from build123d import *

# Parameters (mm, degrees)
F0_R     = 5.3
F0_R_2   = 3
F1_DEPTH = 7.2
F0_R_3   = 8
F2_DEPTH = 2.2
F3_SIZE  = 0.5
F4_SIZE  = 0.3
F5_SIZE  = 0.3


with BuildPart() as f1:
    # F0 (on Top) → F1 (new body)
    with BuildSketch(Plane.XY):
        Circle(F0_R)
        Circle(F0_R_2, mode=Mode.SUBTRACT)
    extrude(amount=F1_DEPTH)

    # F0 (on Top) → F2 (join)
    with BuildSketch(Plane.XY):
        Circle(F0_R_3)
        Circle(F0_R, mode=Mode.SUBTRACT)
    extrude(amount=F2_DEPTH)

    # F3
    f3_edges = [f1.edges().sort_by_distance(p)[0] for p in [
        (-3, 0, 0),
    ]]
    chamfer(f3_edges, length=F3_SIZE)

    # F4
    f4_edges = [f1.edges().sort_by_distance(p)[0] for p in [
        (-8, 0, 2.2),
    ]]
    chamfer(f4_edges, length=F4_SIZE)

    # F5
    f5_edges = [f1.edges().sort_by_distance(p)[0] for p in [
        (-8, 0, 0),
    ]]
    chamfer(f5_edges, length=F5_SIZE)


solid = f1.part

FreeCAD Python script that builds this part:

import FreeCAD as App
import Part
import Sketcher
Q = App.Units.Quantity


def edges_at(feature, points):
    """Names of the edges that pass closest to the given points."""
    edges = feature.Shape.Edges
    near = lambda p: min(range(len(edges)), key=lambda i: edges[i].distToShape(Part.Vertex(*p))[0])
    return sorted({f"Edge{near(p) + 1}" for p in points})

doc = App.newDocument("Part")
body = doc.addObject("PartDesign::Body", "Body")

# Sketch on XY plane
sketch1 = doc.addObject("Sketcher::SketchObject", "Sketch")
body.addObject(sketch1)
sketch1.AttachmentSupport = (doc.XY_Plane, [""])
sketch1.MapMode = "FlatFace"
sketch1.addGeometry([
    Part.Circle(App.Vector(0, 0, 0), App.Vector(0, 0, 1), 5.3),
    Part.Circle(App.Vector(0, 0, 0), App.Vector(0, 0, 1), 3),
], False)
sketch1.addConstraint([
    Sketcher.Constraint("Coincident", 0, 3, -1, 1),
    Sketcher.Constraint("Coincident", 1, 3, -1, 1),
    Sketcher.Constraint("Diameter", 1, Q("6 mm")),
    Sketcher.Constraint("Diameter", 0, Q("10.6 mm")),
])
pad1 = doc.addObject("PartDesign::Pad", "Pad")
body.addObject(pad1)
pad1.Profile = sketch1
pad1.Length = 7.2

# Sketch on XY plane
sketch2 = doc.addObject("Sketcher::SketchObject", "Sketch001")
body.addObject(sketch2)
sketch2.AttachmentSupport = (doc.XY_Plane, [""])
sketch2.MapMode = "FlatFace"
sketch2.addGeometry([
    Part.Circle(App.Vector(0, 0, 0), App.Vector(0, 0, 1), 8),
    Part.Circle(App.Vector(0, 0, 0), App.Vector(0, 0, 1), 5.3),
], False)
sketch2.addConstraint([
    Sketcher.Constraint("Coincident", 0, 3, -1, 1),
    Sketcher.Constraint("Coincident", 1, 3, -1, 1),
    Sketcher.Constraint("Diameter", 0, Q("16 mm")),
    Sketcher.Constraint("Diameter", 1, Q("10.6 mm")),
])
pad2 = doc.addObject("PartDesign::Pad", "Pad001")
body.addObject(pad2)
pad2.Profile = sketch2
pad2.Length = 2.2
doc.recompute()

chamfer = doc.addObject("PartDesign::Chamfer", "Chamfer")
body.addObject(chamfer)
chamfer.Base = (pad2, edges_at(pad2, [(-3, 0, 0)]))
chamfer.Size = 0.5
doc.recompute()

chamfer2 = doc.addObject("PartDesign::Chamfer", "Chamfer001")
body.addObject(chamfer2)
chamfer2.Base = (chamfer, edges_at(chamfer, [(-8, 0, 2.2)]))
chamfer2.Size = 0.3
doc.recompute()

chamfer3 = doc.addObject("PartDesign::Chamfer", "Chamfer002")
body.addObject(chamfer3)
chamfer3.Base = (chamfer2, edges_at(chamfer2, [(-8, 0, 0)]))
chamfer3.Size = 0.3

doc.recompute()
